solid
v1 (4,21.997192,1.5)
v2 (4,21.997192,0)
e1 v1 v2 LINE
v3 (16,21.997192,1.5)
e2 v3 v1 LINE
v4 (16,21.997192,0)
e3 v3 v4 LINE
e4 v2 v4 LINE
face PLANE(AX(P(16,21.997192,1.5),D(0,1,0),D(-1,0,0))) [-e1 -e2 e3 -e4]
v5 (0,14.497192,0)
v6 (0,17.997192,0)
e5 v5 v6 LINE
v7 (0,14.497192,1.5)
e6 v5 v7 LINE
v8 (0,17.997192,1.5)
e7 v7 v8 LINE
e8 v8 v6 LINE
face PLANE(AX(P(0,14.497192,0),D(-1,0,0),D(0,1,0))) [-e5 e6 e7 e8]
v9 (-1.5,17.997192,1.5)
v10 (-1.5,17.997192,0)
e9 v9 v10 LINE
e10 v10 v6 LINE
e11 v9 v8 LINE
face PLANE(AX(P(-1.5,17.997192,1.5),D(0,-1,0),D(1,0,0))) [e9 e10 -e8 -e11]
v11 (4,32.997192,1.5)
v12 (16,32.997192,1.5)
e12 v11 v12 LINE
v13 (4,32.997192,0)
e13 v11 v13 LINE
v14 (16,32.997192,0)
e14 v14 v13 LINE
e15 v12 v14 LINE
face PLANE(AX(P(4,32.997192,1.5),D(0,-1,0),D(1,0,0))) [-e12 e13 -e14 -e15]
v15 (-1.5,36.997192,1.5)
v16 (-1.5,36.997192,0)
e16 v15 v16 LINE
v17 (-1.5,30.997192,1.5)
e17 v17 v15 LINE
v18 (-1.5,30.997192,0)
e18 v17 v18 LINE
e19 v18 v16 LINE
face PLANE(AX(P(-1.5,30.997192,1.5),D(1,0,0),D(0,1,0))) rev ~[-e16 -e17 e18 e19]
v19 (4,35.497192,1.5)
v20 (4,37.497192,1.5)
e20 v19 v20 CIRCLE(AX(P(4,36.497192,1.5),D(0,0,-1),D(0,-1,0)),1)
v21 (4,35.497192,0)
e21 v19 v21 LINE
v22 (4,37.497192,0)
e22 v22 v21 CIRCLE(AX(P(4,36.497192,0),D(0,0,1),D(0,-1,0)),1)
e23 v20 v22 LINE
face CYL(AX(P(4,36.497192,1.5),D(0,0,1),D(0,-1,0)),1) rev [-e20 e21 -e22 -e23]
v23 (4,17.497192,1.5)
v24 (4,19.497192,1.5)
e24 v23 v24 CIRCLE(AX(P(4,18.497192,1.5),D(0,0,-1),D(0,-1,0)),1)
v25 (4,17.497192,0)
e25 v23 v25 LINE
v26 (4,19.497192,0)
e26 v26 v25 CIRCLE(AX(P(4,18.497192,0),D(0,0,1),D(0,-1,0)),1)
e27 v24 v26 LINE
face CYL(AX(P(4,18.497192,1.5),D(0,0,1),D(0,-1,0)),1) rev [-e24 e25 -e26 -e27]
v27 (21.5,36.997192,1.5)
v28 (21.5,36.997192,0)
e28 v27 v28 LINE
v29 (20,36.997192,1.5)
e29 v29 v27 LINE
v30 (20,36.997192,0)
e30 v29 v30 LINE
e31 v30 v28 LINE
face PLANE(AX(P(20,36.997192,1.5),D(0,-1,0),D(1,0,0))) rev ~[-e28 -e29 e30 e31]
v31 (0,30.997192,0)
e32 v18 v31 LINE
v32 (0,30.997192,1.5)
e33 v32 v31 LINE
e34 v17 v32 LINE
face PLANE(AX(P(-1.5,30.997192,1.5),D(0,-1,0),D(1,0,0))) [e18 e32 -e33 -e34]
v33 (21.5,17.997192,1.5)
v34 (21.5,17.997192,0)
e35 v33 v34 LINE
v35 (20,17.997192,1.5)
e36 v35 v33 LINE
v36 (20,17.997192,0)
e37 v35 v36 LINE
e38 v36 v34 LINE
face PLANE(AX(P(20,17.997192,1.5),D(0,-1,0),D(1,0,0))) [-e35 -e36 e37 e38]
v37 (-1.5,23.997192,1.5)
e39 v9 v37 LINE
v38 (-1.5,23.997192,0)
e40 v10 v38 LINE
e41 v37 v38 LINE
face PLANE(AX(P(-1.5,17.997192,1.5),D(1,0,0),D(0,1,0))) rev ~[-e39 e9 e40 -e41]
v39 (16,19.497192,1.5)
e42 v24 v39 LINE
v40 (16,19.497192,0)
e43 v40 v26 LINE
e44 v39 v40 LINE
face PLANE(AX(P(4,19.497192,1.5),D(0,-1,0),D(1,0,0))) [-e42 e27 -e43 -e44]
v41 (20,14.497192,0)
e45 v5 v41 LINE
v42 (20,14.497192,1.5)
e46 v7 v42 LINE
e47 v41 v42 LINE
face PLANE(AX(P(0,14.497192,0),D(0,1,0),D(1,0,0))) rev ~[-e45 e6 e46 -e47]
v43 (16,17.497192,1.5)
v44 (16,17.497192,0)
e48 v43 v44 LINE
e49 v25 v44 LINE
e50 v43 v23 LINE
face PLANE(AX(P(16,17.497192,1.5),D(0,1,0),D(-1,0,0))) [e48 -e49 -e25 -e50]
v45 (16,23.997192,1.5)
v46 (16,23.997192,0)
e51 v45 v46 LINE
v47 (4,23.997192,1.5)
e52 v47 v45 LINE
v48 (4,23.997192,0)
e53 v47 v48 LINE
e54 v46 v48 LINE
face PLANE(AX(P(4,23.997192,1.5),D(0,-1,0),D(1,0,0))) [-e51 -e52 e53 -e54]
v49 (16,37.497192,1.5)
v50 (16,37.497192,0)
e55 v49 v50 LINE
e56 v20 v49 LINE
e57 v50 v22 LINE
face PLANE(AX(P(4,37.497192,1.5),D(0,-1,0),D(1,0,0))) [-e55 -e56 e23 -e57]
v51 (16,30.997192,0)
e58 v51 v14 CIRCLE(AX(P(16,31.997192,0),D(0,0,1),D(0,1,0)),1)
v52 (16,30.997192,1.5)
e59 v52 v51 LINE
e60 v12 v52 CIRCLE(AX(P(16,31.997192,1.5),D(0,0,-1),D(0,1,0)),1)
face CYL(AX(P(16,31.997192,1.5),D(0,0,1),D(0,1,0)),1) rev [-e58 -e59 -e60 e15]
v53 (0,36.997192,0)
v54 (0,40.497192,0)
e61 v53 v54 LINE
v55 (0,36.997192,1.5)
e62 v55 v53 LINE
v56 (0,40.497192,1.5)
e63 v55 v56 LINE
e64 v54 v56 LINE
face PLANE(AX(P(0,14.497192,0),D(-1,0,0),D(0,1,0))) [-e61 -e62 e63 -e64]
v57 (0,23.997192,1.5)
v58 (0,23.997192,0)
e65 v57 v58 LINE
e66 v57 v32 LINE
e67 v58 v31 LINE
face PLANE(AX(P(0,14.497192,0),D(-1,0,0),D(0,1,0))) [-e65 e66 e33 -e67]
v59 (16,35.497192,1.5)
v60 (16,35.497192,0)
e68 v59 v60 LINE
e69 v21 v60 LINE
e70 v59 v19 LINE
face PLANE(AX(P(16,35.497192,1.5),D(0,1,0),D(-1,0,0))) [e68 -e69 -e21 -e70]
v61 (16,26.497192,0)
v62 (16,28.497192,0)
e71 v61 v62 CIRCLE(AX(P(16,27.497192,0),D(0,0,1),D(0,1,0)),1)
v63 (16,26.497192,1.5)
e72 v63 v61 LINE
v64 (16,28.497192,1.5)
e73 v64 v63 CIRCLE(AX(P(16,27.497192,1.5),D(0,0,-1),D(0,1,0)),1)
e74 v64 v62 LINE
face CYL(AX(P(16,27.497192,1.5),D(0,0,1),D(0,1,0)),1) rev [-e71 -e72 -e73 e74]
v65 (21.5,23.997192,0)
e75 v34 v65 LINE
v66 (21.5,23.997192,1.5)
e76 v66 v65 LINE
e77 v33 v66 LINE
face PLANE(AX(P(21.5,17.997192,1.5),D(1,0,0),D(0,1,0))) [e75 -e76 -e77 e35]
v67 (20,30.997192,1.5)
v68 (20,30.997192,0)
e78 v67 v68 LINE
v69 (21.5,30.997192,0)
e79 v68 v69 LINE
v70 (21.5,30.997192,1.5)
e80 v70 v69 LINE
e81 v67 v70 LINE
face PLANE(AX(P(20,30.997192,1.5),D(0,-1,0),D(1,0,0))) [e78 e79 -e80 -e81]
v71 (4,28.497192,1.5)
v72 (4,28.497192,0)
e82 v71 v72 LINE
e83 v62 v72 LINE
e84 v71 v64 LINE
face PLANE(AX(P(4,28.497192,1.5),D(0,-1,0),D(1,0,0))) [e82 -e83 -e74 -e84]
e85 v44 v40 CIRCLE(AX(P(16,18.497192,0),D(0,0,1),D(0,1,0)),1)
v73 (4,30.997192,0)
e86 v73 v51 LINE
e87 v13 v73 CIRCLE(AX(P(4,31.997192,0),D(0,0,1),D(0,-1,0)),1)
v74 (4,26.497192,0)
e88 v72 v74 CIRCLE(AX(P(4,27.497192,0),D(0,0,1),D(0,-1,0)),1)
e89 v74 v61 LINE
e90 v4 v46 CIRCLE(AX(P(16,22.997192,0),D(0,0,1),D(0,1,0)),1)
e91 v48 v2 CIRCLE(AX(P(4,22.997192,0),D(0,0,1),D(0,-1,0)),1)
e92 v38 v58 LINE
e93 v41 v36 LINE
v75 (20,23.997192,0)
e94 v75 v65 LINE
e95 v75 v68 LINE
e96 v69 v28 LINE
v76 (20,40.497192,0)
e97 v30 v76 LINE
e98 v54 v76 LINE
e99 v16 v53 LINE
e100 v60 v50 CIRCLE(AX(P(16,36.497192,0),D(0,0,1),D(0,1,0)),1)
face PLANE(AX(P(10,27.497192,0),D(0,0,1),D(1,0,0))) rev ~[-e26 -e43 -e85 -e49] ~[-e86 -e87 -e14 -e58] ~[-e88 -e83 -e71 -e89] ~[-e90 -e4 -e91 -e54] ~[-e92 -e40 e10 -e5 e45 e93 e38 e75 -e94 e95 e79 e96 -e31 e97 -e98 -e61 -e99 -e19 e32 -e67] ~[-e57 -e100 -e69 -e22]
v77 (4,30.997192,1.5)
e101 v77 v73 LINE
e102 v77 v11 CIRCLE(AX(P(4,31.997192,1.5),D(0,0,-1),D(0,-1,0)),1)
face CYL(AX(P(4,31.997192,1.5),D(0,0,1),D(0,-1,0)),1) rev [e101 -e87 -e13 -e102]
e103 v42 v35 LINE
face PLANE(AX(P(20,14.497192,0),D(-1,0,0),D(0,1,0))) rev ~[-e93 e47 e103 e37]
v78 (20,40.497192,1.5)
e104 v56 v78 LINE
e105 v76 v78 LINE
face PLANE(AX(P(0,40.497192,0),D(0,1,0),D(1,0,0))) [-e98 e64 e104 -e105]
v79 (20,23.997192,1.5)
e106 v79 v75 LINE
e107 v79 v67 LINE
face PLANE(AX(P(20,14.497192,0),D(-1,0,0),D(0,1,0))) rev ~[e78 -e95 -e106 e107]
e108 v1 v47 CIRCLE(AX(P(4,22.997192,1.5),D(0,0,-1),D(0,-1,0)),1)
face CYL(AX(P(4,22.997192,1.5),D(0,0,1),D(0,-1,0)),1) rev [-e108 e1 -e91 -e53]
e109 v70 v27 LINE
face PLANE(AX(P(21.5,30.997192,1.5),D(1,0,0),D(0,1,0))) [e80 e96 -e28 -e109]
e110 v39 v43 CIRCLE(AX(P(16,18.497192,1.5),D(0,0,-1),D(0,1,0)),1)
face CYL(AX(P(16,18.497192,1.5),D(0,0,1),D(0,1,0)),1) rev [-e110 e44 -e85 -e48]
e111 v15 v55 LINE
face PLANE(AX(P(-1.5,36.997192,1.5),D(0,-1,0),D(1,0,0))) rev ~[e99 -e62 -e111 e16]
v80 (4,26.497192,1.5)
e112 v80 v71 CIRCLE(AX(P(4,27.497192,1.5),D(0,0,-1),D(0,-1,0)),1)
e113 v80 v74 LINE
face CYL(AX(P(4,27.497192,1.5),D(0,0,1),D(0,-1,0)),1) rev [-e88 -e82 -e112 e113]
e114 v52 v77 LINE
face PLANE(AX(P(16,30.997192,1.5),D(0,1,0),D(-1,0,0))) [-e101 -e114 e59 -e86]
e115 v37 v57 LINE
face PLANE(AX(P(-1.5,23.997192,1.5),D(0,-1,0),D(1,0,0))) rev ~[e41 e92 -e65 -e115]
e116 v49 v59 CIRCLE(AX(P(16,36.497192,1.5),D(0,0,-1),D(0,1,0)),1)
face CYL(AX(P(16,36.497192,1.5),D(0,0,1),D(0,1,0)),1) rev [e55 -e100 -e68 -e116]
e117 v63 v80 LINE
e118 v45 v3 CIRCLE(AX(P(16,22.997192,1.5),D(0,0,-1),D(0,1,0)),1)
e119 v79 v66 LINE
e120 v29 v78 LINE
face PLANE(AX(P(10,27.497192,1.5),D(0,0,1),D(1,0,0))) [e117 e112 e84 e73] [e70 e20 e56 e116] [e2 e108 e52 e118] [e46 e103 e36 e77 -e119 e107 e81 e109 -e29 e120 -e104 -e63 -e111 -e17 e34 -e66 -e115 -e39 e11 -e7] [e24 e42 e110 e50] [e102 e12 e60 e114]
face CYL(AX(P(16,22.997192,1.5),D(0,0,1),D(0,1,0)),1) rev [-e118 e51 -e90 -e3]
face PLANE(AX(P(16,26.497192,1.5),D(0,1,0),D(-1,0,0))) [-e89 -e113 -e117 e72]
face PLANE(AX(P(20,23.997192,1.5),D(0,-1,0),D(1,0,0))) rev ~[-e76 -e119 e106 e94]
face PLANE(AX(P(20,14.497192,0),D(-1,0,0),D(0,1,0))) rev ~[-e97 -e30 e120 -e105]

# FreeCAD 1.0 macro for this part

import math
import FreeCAD as App
import Part
import Sketcher
from FreeCAD import Vector

doc = App.newDocument("Part")
params = doc.addObject("Spreadsheet::Sheet", "Params")
for row, (alias, value) in enumerate([
    ("sketch1_width", "20 mm"),
    ("sketch1_height", "26 mm"),
    ("pad1_length", "1.5 mm"),
    ("sketch2_height", "6 mm"),
    ("sketch2_width", "1.5 mm"),
    ("pad2_length", "1.5 mm"),
    ("sketch3_radius", "1 mm"),
    ("sketch3_width", "12 mm"),
    ("sketch4_radius", "1 mm"),
    ("sketch4_width", "12 mm"),
    ("sketch5_radius", "1 mm"),
    ("sketch5_width", "12 mm"),
    ("sketch6_radius", "1 mm"),
    ("sketch6_width", "12 mm"),
    ("sketch7_radius", "1 mm"),
    ("sketch7_width", "12 mm"),
], start=1):
    params.set(f"A{row}", alias)
    params.set(f"B{row}", "=" + value)
    params.setAlias(f"B{row}", alias)

body = doc.addObject("PartDesign::Body", "Body")

# Sketch on XY plane
sketch1 = body.newObject("Sketcher::SketchObject", "Sketch")
sketch1.AttachmentSupport = (doc.getObject("XY_Plane"), [""])
sketch1.MapMode = "FlatFace"
sketch1.addGeometry([
    Part.LineSegment(Vector(0, 40.497192, 0), Vector(0, 14.497192, 0)),
    Part.LineSegment(Vector(0, 14.497192, 0), Vector(20, 14.497192, 0)),
    Part.LineSegment(Vector(20, 14.497192, 0), Vector(20, 40.497192, 0)),
    Part.LineSegment(Vector(20, 40.497192, 0), Vector(0, 40.497192, 0)),
], False)
sketch1.addConstraint([
    Sketcher.Constraint("Coincident", 0, 2, 1, 1),
    Sketcher.Constraint("Coincident", 1, 2, 2, 1),
    Sketcher.Constraint("Coincident", 2, 2, 3, 1),
    Sketcher.Constraint("Coincident", 3, 2, 0, 1),
    Sketcher.Constraint("Vertical", 0),
    Sketcher.Constraint("Horizontal", 1),
    Sketcher.Constraint("Vertical", 2),
    Sketcher.Constraint("Horizontal", 3),
    Sketcher.Constraint("PointOnObject", 0, 2, -2),
    Sketcher.Constraint("DistanceX", 1, 1, 1, 2, 20.0),
    Sketcher.Constraint("DistanceY", 0, 2, 0, 1, 26.0),
    Sketcher.Constraint("DistanceY", -1, 1, 0, 2, 14.497192),
])
sketch1.setExpression("Constraints[9]", "Params.sketch1_width")
sketch1.setExpression("Constraints[10]", "Params.sketch1_height")
pad1 = body.newObject("PartDesign::Pad", "Pad")
pad1.Profile = sketch1
pad1.setExpression("Length", "Params.pad1_length")

# Sketch on XY plane
sketch2 = body.newObject("Sketcher::SketchObject", "Sketch001")
sketch2.AttachmentSupport = (doc.getObject("XY_Plane"), [""])
sketch2.MapMode = "FlatFace"
sketch2.AttachmentOffset = App.Placement(Vector(0, 0, 1.5), App.Rotation())
sketch2.addGeometry([
    Part.LineSegment(Vector(-1.5, 36.997192, 0), Vector(-1.5, 30.997192, 0)),  # 0
    Part.LineSegment(Vector(-1.5, 30.997192, 0), Vector(0, 30.997192, 0)),  # 1
    Part.LineSegment(Vector(0, 30.997192, 0), Vector(0, 36.997192, 0)),  # 2
    Part.LineSegment(Vector(0, 36.997192, 0), Vector(-1.5, 36.997192, 0)),  # 3
    Part.LineSegment(Vector(20, 36.997192, 0), Vector(20, 30.997192, 0)),  # 4
    Part.LineSegment(Vector(20, 30.997192, 0), Vector(21.5, 30.997192, 0)),  # 5
    Part.LineSegment(Vector(21.5, 30.997192, 0), Vector(21.5, 36.997192, 0)),  # 6
    Part.LineSegment(Vector(21.5, 36.997192, 0), Vector(20, 36.997192, 0)),  # 7
    Part.LineSegment(Vector(20, 23.997192, 0), Vector(20, 17.997192, 0)),  # 8
    Part.LineSegment(Vector(20, 17.997192, 0), Vector(21.5, 17.997192, 0)),  # 9
    Part.LineSegment(Vector(21.5, 17.997192, 0), Vector(21.5, 23.997192, 0)),  # 10
    Part.LineSegment(Vector(21.5, 23.997192, 0), Vector(20, 23.997192, 0)),  # 11
    Part.LineSegment(Vector(-1.5, 23.997192, 0), Vector(-1.5, 17.997192, 0)),  # 12
    Part.LineSegment(Vector(-1.5, 17.997192, 0), Vector(0, 17.997192, 0)),  # 13
    Part.LineSegment(Vector(0, 17.997192, 0), Vector(0, 23.997192, 0)),  # 14
    Part.LineSegment(Vector(0, 23.997192, 0), Vector(-1.5, 23.997192, 0)),  # 15
], False)
sketch2.addConstraint([
    Sketcher.Constraint("Coincident", 0, 2, 1, 1),
    Sketcher.Constraint("Coincident", 1, 2, 2, 1),
    Sketcher.Constraint("Coincident", 2, 2, 3, 1),
    Sketcher.Constraint("Coincident", 3, 2, 0, 1),
    Sketcher.Constraint("Coincident", 4, 2, 5, 1),
    Sketcher.Constraint("Coincident", 5, 2, 6, 1),
    Sketcher.Constraint("Coincident", 6, 2, 7, 1),
    Sketcher.Constraint("Coincident", 7, 2, 4, 1),
    Sketcher.Constraint("Coincident", 8, 2, 9, 1),
    Sketcher.Constraint("Coincident", 9, 2, 10, 1),
    Sketcher.Constraint("Coincident", 10, 2, 11, 1),
    Sketcher.Constraint("Coincident", 11, 2, 8, 1),
    Sketcher.Constraint("Coincident", 12, 2, 13, 1),
    Sketcher.Constraint("Coincident", 13, 2, 14, 1),
    Sketcher.Constraint("Coincident", 14, 2, 15, 1),
    Sketcher.Constraint("Coincident", 15, 2, 12, 1),
    Sketcher.Constraint("Vertical", 0),
    Sketcher.Constraint("Horizontal", 1),
    Sketcher.Constraint("Vertical", 2),
    Sketcher.Constraint("Horizontal", 3),
    Sketcher.Constraint("Vertical", 4),
    Sketcher.Constraint("Horizontal", 5),
    Sketcher.Constraint("Vertical", 6),
    Sketcher.Constraint("Horizontal", 7),
    Sketcher.Constraint("Vertical", 8),
    Sketcher.Constraint("Horizontal", 9),
    Sketcher.Constraint("Vertical", 10),
    Sketcher.Constraint("Horizontal", 11),
    Sketcher.Constraint("Vertical", 12),
    Sketcher.Constraint("Horizontal", 13),
    Sketcher.Constraint("Vertical", 14),
    Sketcher.Constraint("Horizontal", 15),
    Sketcher.Constraint("PointOnObject", 1, 2, -2),
    Sketcher.Constraint("PointOnObject", 13, 2, -2),
    Sketcher.Constraint("Horizontal", 1, 2, 4, 2),
    Sketcher.Constraint("Horizontal", 3, 2, 6, 2),
    Sketcher.Constraint("Horizontal", 9, 2, 12, 2),
    Sketcher.Constraint("Horizontal", 11, 2, 14, 2),
    Sketcher.Constraint("Vertical", 7, 2, 8, 2),
    Sketcher.Constraint("Vertical", 6, 2, 9, 2),
    Sketcher.Constraint("Vertical", 3, 2, 12, 2),
    Sketcher.Constraint("Equal", 3, 5),
    Sketcher.Constraint("Equal", 6, 8),
    Sketcher.Constraint("DistanceY", 0, 2, 0, 1, 6.0),
    Sketcher.Constraint("DistanceX", 1, 1, 1, 2, 1.5),
    Sketcher.Constraint("DistanceX", -1, 1, 4, 2, 20.0),
    Sketcher.Constraint("DistanceY", 8, 2, 4, 2, 13.0),
    Sketcher.Constraint("DistanceY", -1, 1, 0, 2, 30.997192),
])
sketch2.setExpression("Constraints[43]", "Params.sketch2_height")
sketch2.setExpression("Constraints[44]", "Params.sketch2_width")
pad2 = body.newObject("PartDesign::Pad", "Pad001")
pad2.Profile = sketch2
pad2.setExpression("Length", "Params.pad2_length")
pad2.Reversed = True

# Sketch on XY plane
sketch3 = body.newObject("Sketcher::SketchObject", "Sketch002")
sketch3.AttachmentSupport = (doc.getObject("XY_Plane"), [""])
sketch3.MapMode = "FlatFace"
sketch3.AttachmentOffset = App.Placement(Vector(0, 0, 1.5), App.Rotation())
sketch3.addGeometry([
    Part.LineSegment(Vector(16, 37.497192, 0), Vector(4, 37.497192, 0)),
    Part.ArcOfCircle(Part.Circle(Vector(4, 36.497192, 0), Vector(0, 0, 1), 1), math.radians(90), math.radians(270)),
    Part.LineSegment(Vector(4, 35.497192, 0), Vector(16, 35.497192, 0)),
    Part.ArcOfCircle(Part.Circle(Vector(16, 36.497192, 0), Vector(0, 0, 1), 1), math.radians(-90), math.radians(90)),
], False)
sketch3.addConstraint([
    Sketcher.Constraint("Tangent", 0, 2, 1, 1),
    Sketcher.Constraint("Tangent", 1, 2, 2, 1),
    Sketcher.Constraint("Tangent", 2, 2, 3, 1),
    Sketcher.Constraint("Tangent", 3, 2, 0, 1),
    Sketcher.Constraint("Horizontal", 0),
    Sketcher.Constraint("Horizontal", 2),
    Sketcher.Constraint("Radius", 1, 1.0),
    Sketcher.Constraint("DistanceX", 0, 2, 0, 1, 12.0),
    Sketcher.Constraint("DistanceX", -1, 1, 1, 3, 4.0),
    Sketcher.Constraint("DistanceY", -1, 1, 1, 3, 36.497192),
])
sketch3.setExpression("Constraints[6]", "Params.sketch3_radius")
sketch3.setExpression("Constraints[7]", "Params.sketch3_width")
pocket1 = body.newObject("PartDesign::Pocket", "Pocket")
pocket1.Profile = sketch3
pocket1.Type = "UpToFirst"

# Sketch on XY plane
sketch4 = body.newObject("Sketcher::SketchObject", "Sketch003")
sketch4.AttachmentSupport = (doc.getObject("XY_Plane"), [""])
sketch4.MapMode = "FlatFace"
sketch4.AttachmentOffset = App.Placement(Vector(0, 0, 1.5), App.Rotation())
sketch4.addGeometry([
    Part.LineSegment(Vector(16, 32.997192, 0), Vector(4, 32.997192, 0)),
    Part.ArcOfCircle(Part.Circle(Vector(4, 31.997192, 0), Vector(0, 0, 1), 1), math.radians(90), math.radians(270)),
    Part.LineSegment(Vector(4, 30.997192, 0), Vector(16, 30.997192, 0)),
    Part.ArcOfCircle(Part.Circle(Vector(16, 31.997192, 0), Vector(0, 0, 1), 1), math.radians(-90), math.radians(90)),
], False)
sketch4.addConstraint([
    Sketcher.Constraint("Tangent", 0, 2, 1, 1),
    Sketcher.Constraint("Tangent", 1, 2, 2, 1),
    Sketcher.Constraint("Tangent", 2, 2, 3, 1),
    Sketcher.Constraint("Tangent", 3, 2, 0, 1),
    Sketcher.Constraint("Horizontal", 0),
    Sketcher.Constraint("Horizontal", 2),
    Sketcher.Constraint("Radius", 1, 1.0),
    Sketcher.Constraint("DistanceX", 0, 2, 0, 1, 12.0),
    Sketcher.Constraint("DistanceX", -1, 1, 1, 3, 4.0),
    Sketcher.Constraint("DistanceY", -1, 1, 1, 3, 31.997192),
])
sketch4.setExpression("Constraints[6]", "Params.sketch4_radius")
sketch4.setExpression("Constraints[7]", "Params.sketch4_width")
pocket2 = body.newObject("PartDesign::Pocket", "Pocket001")
pocket2.Profile = sketch4
pocket2.Type = "UpToFirst"

# Sketch on XY plane
sketch5 = body.newObject("Sketcher::SketchObject", "Sketch004")
sketch5.AttachmentSupport = (doc.getObject("XY_Plane"), [""])
sketch5.MapMode = "FlatFace"
sketch5.AttachmentOffset = App.Placement(Vector(0, 0, 1.5), App.Rotation())
sketch5.addGeometry([
    Part.LineSegment(Vector(16, 28.497192, 0), Vector(4, 28.497192, 0)),
    Part.ArcOfCircle(Part.Circle(Vector(4, 27.497192, 0), Vector(0, 0, 1), 1), math.radians(90), math.radians(270)),
    Part.LineSegment(Vector(4, 26.497192, 0), Vector(16, 26.497192, 0)),
    Part.ArcOfCircle(Part.Circle(Vector(16, 27.497192, 0), Vector(0, 0, 1), 1), math.radians(-90), math.radians(90)),
], False)
sketch5.addConstraint([
    Sketcher.Constraint("Tangent", 0, 2, 1, 1),
    Sketcher.Constraint("Tangent", 1, 2, 2, 1),
    Sketcher.Constraint("Tangent", 2, 2, 3, 1),
    Sketcher.Constraint("Tangent", 3, 2, 0, 1),
    Sketcher.Constraint("Horizontal", 0),
    Sketcher.Constraint("Horizontal", 2),
    Sketcher.Constraint("Radius", 1, 1.0),
    Sketcher.Constraint("DistanceX", 0, 2, 0, 1, 12.0),
    Sketcher.Constraint("DistanceX", -1, 1, 1, 3, 4.0),
    Sketcher.Constraint("DistanceY", -1, 1, 1, 3, 27.497192),
])
sketch5.setExpression("Constraints[6]", "Params.sketch5_radius")
sketch5.setExpression("Constraints[7]", "Params.sketch5_width")
pocket3 = body.newObject("PartDesign::Pocket", "Pocket002")
pocket3.Profile = sketch5
pocket3.Type = "UpToFirst"

# Sketch on XY plane
sketch6 = body.newObject("Sketcher::SketchObject", "Sketch005")
sketch6.AttachmentSupport = (doc.getObject("XY_Plane"), [""])
sketch6.MapMode = "FlatFace"
sketch6.AttachmentOffset = App.Placement(Vector(0, 0, 1.5), App.Rotation())
sketch6.addGeometry([
    Part.LineSegment(Vector(16, 23.997192, 0), Vector(4, 23.997192, 0)),
    Part.ArcOfCircle(Part.Circle(Vector(4, 22.997192, 0), Vector(0, 0, 1), 1), math.radians(90), math.radians(270)),
    Part.LineSegment(Vector(4, 21.997192, 0), Vector(16, 21.997192, 0)),
    Part.ArcOfCircle(Part.Circle(Vector(16, 22.997192, 0), Vector(0, 0, 1), 1), math.radians(-90), math.radians(90)),
], False)
sketch6.addConstraint([
    Sketcher.Constraint("Tangent", 0, 2, 1, 1),
    Sketcher.Constraint("Tangent", 1, 2, 2, 1),
    Sketcher.Constraint("Tangent", 2, 2, 3, 1),
    Sketcher.Constraint("Tangent", 3, 2, 0, 1),
    Sketcher.Constraint("Horizontal", 0),
    Sketcher.Constraint("Horizontal", 2),
    Sketcher.Constraint("Radius", 1, 1.0),
    Sketcher.Constraint("DistanceX", 0, 2, 0, 1, 12.0),
    Sketcher.Constraint("DistanceX", -1, 1, 1, 3, 4.0),
    Sketcher.Constraint("DistanceY", -1, 1, 1, 3, 22.997192),
])
sketch6.setExpression("Constraints[6]", "Params.sketch6_radius")
sketch6.setExpression("Constraints[7]", "Params.sketch6_width")
pocket4 = body.newObject("PartDesign::Pocket", "Pocket003")
pocket4.Profile = sketch6
pocket4.Type = "UpToFirst"

# Sketch on XY plane
sketch7 = body.newObject("Sketcher::SketchObject", "Sketch006")
sketch7.AttachmentSupport = (doc.getObject("XY_Plane"), [""])
sketch7.MapMode = "FlatFace"
sketch7.AttachmentOffset = App.Placement(Vector(0, 0, 1.5), App.Rotation())
sketch7.addGeometry([
    Part.LineSegment(Vector(16, 19.497192, 0), Vector(4, 19.497192, 0)),
    Part.ArcOfCircle(Part.Circle(Vector(4, 18.497192, 0), Vector(0, 0, 1), 1), math.radians(90), math.radians(270)),
    Part.LineSegment(Vector(4, 17.497192, 0), Vector(16, 17.497192, 0)),
    Part.ArcOfCircle(Part.Circle(Vector(16, 18.497192, 0), Vector(0, 0, 1), 1), math.radians(-90), math.radians(90)),
], False)
sketch7.addConstraint([
    Sketcher.Constraint("Tangent", 0, 2, 1, 1),
    Sketcher.Constraint("Tangent", 1, 2, 2, 1),
    Sketcher.Constraint("Tangent", 2, 2, 3, 1),
    Sketcher.Constraint("Tangent", 3, 2, 0, 1),
    Sketcher.Constraint("Horizontal", 0),
    Sketcher.Constraint("Horizontal", 2),
    Sketcher.Constraint("Radius", 1, 1.0),
    Sketcher.Constraint("DistanceX", 0, 2, 0, 1, 12.0),
    Sketcher.Constraint("DistanceX", -1, 1, 1, 3, 4.0),
    Sketcher.Constraint("DistanceY", -1, 1, 1, 3, 18.497192),
])
sketch7.setExpression("Constraints[6]", "Params.sketch7_radius")
sketch7.setExpression("Constraints[7]", "Params.sketch7_width")
pocket5 = body.newObject("PartDesign::Pocket", "Pocket004")
pocket5.Profile = sketch7
pocket5.Type = "UpToFirst"

doc.recompute()
